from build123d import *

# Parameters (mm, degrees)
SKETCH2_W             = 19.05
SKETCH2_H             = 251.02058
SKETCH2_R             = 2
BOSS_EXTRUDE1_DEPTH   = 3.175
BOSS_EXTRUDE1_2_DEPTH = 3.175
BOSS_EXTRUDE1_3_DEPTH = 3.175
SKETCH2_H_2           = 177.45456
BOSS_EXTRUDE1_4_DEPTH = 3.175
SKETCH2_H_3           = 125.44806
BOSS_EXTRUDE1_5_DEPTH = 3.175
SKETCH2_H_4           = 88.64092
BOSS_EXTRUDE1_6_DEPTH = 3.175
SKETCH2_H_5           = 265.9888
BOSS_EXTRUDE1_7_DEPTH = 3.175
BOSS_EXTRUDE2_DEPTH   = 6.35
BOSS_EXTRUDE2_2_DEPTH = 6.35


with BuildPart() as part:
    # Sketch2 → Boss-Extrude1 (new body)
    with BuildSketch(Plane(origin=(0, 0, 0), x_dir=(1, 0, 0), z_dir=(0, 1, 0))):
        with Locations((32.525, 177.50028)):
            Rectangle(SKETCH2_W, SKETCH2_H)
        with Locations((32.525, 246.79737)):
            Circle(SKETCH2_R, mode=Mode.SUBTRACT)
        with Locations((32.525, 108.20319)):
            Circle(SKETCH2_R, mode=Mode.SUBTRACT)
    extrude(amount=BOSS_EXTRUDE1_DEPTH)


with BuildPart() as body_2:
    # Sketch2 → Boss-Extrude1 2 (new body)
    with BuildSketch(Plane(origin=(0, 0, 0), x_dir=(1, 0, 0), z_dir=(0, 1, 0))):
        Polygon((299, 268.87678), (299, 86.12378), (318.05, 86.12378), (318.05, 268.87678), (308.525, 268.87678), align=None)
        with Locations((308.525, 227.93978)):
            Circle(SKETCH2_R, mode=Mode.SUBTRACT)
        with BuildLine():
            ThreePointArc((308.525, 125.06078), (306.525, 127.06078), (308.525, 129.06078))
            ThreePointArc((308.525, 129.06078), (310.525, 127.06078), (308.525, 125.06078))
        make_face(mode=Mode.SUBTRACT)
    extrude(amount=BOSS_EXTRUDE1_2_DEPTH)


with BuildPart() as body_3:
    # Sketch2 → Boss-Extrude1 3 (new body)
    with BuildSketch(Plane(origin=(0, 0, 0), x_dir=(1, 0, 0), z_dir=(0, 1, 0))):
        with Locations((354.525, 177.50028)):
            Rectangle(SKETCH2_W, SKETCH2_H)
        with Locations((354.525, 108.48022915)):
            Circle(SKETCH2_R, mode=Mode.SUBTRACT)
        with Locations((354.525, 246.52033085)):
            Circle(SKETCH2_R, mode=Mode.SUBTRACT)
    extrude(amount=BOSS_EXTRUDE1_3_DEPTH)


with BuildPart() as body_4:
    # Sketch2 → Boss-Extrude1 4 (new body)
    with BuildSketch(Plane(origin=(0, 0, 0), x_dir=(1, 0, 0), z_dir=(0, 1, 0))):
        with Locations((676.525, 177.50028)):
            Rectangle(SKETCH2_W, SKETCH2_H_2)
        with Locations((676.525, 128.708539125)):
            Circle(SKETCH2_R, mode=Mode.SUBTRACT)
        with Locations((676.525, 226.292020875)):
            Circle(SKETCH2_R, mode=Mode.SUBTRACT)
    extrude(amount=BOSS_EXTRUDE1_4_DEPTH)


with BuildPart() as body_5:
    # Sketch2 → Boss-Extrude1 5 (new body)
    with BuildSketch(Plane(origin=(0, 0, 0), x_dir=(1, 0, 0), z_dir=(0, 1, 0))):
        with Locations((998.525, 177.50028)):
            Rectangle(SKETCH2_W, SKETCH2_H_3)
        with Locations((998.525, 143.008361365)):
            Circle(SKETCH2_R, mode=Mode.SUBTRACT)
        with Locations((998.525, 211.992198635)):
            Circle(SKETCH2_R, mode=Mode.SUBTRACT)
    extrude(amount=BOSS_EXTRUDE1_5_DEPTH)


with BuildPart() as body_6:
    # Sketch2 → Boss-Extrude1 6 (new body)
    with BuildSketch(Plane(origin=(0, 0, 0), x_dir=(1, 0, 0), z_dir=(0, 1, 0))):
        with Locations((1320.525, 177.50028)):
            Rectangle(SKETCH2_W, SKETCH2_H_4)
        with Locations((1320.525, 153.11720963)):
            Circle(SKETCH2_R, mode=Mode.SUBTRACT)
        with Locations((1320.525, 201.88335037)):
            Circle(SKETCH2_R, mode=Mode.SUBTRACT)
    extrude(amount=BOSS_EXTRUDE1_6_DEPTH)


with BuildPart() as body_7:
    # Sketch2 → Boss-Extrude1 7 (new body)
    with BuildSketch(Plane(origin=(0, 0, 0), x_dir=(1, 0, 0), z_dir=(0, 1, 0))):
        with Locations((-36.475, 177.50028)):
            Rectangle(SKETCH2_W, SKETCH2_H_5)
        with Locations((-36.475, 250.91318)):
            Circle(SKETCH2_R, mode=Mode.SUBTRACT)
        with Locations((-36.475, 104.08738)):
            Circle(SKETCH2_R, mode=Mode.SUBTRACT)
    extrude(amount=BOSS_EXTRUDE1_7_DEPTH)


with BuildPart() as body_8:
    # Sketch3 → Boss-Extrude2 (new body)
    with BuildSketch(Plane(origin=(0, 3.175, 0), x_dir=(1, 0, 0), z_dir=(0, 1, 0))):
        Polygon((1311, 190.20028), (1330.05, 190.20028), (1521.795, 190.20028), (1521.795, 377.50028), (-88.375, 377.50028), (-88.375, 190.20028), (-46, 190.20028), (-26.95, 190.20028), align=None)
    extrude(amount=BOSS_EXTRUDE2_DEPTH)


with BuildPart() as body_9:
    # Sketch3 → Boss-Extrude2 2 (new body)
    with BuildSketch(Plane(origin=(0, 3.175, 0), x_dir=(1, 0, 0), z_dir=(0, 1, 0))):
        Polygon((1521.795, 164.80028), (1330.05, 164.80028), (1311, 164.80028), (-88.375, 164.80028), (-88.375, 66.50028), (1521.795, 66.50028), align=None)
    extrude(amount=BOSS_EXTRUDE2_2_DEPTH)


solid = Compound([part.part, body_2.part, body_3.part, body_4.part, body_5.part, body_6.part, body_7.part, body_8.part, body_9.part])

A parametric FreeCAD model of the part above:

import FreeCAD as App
import Part
import Sketcher
from FreeCAD import Vector
Q = App.Units.Quantity

doc = App.newDocument("Part")
body = doc.addObject("PartDesign::Body", "Body")

# Sketch on XZ plane
sketch1 = body.newObject("Sketcher::SketchObject", "Sketch")
sketch1.AttachmentSupport = (doc.getObject("XZ_Plane"), [""])
sketch1.MapMode = "FlatFace"
sketch1.addGeometry([
    Part.LineSegment(Vector(23, -303, 0), Vector(23, -52, 0)),  # 0
    Part.LineSegment(Vector(23, -52, 0), Vector(42, -52, 0)),  # 1
    Part.LineSegment(Vector(42, -52, 0), Vector(42, -303, 0)),  # 2
    Part.LineSegment(Vector(42, -303, 0), Vector(23, -303, 0)),  # 3
    Part.Circle(Vector(32.5, -108.2, 0), Vector(0, 0, 1), 2),  # 4
    Part.Circle(Vector(32.5, -246.8, 0), Vector(0, 0, 1), 2),  # 5
], False)
sketch1.addConstraint([
    Sketcher.Constraint("Coincident", 0, 2, 1, 1),
    Sketcher.Constraint("Coincident", 1, 2, 2, 1),
    Sketcher.Constraint("Coincident", 2, 2, 3, 1),
    Sketcher.Constraint("Coincident", 3, 2, 0, 1),
    Sketcher.Constraint("Vertical", 0),
    Sketcher.Constraint("Horizontal", 1),
    Sketcher.Constraint("Vertical", 2),
    Sketcher.Constraint("Horizontal", 3),
    Sketcher.Constraint("Equal", 4, 5),
    Sketcher.Constraint("Vertical", 4, 3, 5, 3),
    Sketcher.Constraint("DistanceX", 1, 1, 1, 2, Q("0.75 in")),
    Sketcher.Constraint("Diameter", 4, 4.0),
    Sketcher.Constraint("DistanceY", 0, 1, 0, 2, Q("9.8827 in")),
    Sketcher.Constraint("DistanceX", 0, 2, 4, 3, Q("0.375 in")),
    Sketcher.Constraint("DistanceX", -1, 1, 4, 3, 32.525),
    Sketcher.Constraint("DistanceY", 4, 3, 0, 2, 56.2132),
    Sketcher.Constraint("DistanceY", 2, 2, 5, 3, 56.2132),
    Sketcher.Constraint("DistanceY", 4, 3, -1, 1, 108.20319),
])
pad1 = body.newObject("PartDesign::Pad", "Pad")
pad1.Profile = sketch1
pad1.Length = Q("0.125 in")
pad1.Reversed = True
body2 = doc.addObject("PartDesign::Body", "Body001")

# Sketch on XZ plane
sketch2 = body2.newObject("Sketcher::SketchObject", "Sketch001")
sketch2.AttachmentSupport = (doc.getObject("XZ_Plane001"), [""])
sketch2.MapMode = "FlatFace"
sketch2.addGeometry([
    Part.LineSegment(Vector(299, -268.9, 0), Vector(299, -86.1, 0)),  # 0
    Part.LineSegment(Vector(299, -86.1, 0), Vector(318.1, -86.1, 0)),  # 1
    Part.LineSegment(Vector(318.1, -86.1, 0), Vector(318.1, -268.9, 0)),  # 2
    Part.LineSegment(Vector(318.1, -268.9, 0), Vector(299, -268.9, 0)),  # 3
    Part.Circle(Vector(308.5, -127.1, 0), Vector(0, 0, 1), 2),  # 4
    Part.Circle(Vector(308.5, -227.9, 0), Vector(0, 0, 1), 2),  # 5
], False)
sketch2.addConstraint([
    Sketcher.Constraint("Coincident", 0, 2, 1, 1),
    Sketcher.Constraint("Coincident", 1, 2, 2, 1),
    Sketcher.Constraint("Coincident", 2, 2, 3, 1),
    Sketcher.Constraint("Coincident", 3, 2, 0, 1),
    Sketcher.Constraint("Vertical", 0),
    Sketcher.Constraint("Horizontal", 1),
    Sketcher.Constraint("Vertical", 2),
    Sketcher.Constraint("Horizontal", 3),
    Sketcher.Constraint("Equal", 4, 5),
    Sketcher.Constraint("Vertical", 4, 3, 5, 3),
    Sketcher.Constraint("DistanceX", 1, 1, 1, 2, Q("0.75 in")),
    Sketcher.Constraint("Diameter", 4, 4.0),
    Sketcher.Constraint("DistanceY", 0, 1, 0, 2, Q("7.195 in")),
    Sketcher.Constraint("DistanceX", 0, 2, 4, 3, Q("0.375 in")),
    Sketcher.Constraint("DistanceY", 0, 2, -1, 1, Q("3.3907 in")),
    Sketcher.Constraint("DistanceX", -1, 1, 4, 3, 308.525),
    Sketcher.Constraint("DistanceY", 5, 3, 4, 3, 100.879),
    Sketcher.Constraint("DistanceY", 4, 3, 0, 2, 40.937),
])
pad2 = body2.newObject("PartDesign::Pad", "Pad001")
pad2.Profile = sketch2
pad2.Length = Q("0.125 in")
pad2.Reversed = True
body3 = doc.addObject("PartDesign::Body", "Body002")

# Sketch on XZ plane
sketch3 = body3.newObject("Sketcher::SketchObject", "Sketch002")
sketch3.AttachmentSupport = (doc.getObject("XZ_Plane002"), [""])
sketch3.MapMode = "FlatFace"
sketch3.addGeometry([
    Part.LineSegment(Vector(345, -303, 0), Vector(345, -52, 0)),  # 0
    Part.LineSegment(Vector(345, -52, 0), Vector(364.1, -52, 0)),  # 1
    Part.LineSegment(Vector(364.1, -52, 0), Vector(364.1, -303, 0)),  # 2
    Part.LineSegment(Vector(364.1, -303, 0), Vector(345, -303, 0)),  # 3
    Part.Circle(Vector(354.5, -108.5, 0), Vector(0, 0, 1), 2),  # 4
    Part.Circle(Vector(354.5, -246.5, 0), Vector(0, 0, 1), 2),  # 5
], False)
sketch3.addConstraint([
    Sketcher.Constraint("Coincident", 0, 2, 1, 1),
    Sketcher.Constraint("Coincident", 1, 2, 2, 1),
    Sketcher.Constraint("Coincident", 2, 2, 3, 1),
    Sketcher.Constraint("Coincident", 3, 2, 0, 1),
    Sketcher.Constraint("Vertical", 0),
    Sketcher.Constraint("Horizontal", 1),
    Sketcher.Constraint("Vertical", 2),
    Sketcher.Constraint("Horizontal", 3),
    Sketcher.Constraint("Equal", 4, 5),
    Sketcher.Constraint("Vertical", 4, 3, 5, 3),
    Sketcher.Constraint("DistanceX", 1, 1, 1, 2, Q("0.75 in")),
    Sketcher.Constraint("Diameter", 4, 4.0),
    Sketcher.Constraint("DistanceY", 0, 1, 0, 2, Q("9.8827 in")),
    Sketcher.Constraint("DistanceX", 0, 2, 4, 3, Q("0.375 in")),
    Sketcher.Constraint("DistanceX", -1, 1, 4, 3, 354.525),
    Sketcher.Constraint("DistanceY", 5, 3, 4, 3, 138.040102),
    Sketcher.Constraint("DistanceY", 4, 3, -1, 1, 108.480229),
    Sketcher.Constraint("DistanceY", 0, 2, -1, 1, 51.98999),
])
pad3 = body3.newObject("PartDesign::Pad", "Pad002")
pad3.Profile = sketch3
pad3.Length = Q("0.125 in")
pad3.Reversed = True
body4 = doc.addObject("PartDesign::Body", "Body003")

# Sketch on XZ plane
sketch4 = body4.newObject("Sketcher::SketchObject", "Sketch003")
sketch4.AttachmentSupport = (doc.getObject("XZ_Plane003"), [""])
sketch4.MapMode = "FlatFace"
sketch4.addGeometry([
    Part.LineSegment(Vector(667, -266.2, 0), Vector(667, -88.8, 0)),  # 0
    Part.LineSegment(Vector(667, -88.8, 0), Vector(686, -88.8, 0)),  # 1
    Part.LineSegment(Vector(686, -88.8, 0), Vector(686, -266.2, 0)),  # 2
    Part.LineSegment(Vector(686, -266.2, 0), Vector(667, -266.2, 0)),  # 3
    Part.Circle(Vector(676.5, -128.7, 0), Vector(0, 0, 1), 2),  # 4
    Part.Circle(Vector(676.5, -226.3, 0), Vector(0, 0, 1), 2),  # 5
], False)
sketch4.addConstraint([
    Sketcher.Constraint("Coincident", 0, 2, 1, 1),
    Sketcher.Constraint("Coincident", 1, 2, 2, 1),
    Sketcher.Constraint("Coincident", 2, 2, 3, 1),
    Sketcher.Constraint("Coincident", 3, 2, 0, 1),
    Sketcher.Constraint("Vertical", 0),
    Sketcher.Constraint("Horizontal", 1),
    Sketcher.Constraint("Vertical", 2),
    Sketcher.Constraint("Horizontal", 3),
    Sketcher.Constraint("Equal", 4, 5),
    Sketcher.Constraint("Vertical", 4, 3, 5, 3),
    Sketcher.Constraint("DistanceX", 1, 1, 1, 2, Q("0.75 in")),
    Sketcher.Constraint("Diameter", 4, 4.0),
    Sketcher.Constraint("DistanceY", 0, 1, 0, 2, Q("6.9864 in")),
    Sketcher.Constraint("DistanceY", 0, 2, -1, 1, Q("3.495 in")),
    Sketcher.Constraint("DistanceX", 0, 2, 4, 3, Q("0.375 in")),
    Sketcher.Constraint("DistanceX", -1, 1, 4, 3, 676.525),
    Sketcher.Constraint("DistanceY", 4, 3, -1, 1, 128.708539),
    Sketcher.Constraint("DistanceY", 5, 3, -1, 1, 226.292021),
])
pad4 = body4.newObject("PartDesign::Pad", "Pad003")
pad4.Profile = sketch4
pad4.Length = Q("0.125 in")
pad4.Reversed = True
body5 = doc.addObject("PartDesign::Body", "Body004")

# Sketch on XZ plane
sketch5 = body5.newObject("Sketcher::SketchObject", "Sketch004")
sketch5.AttachmentSupport = (doc.getObject("XZ_Plane004"), [""])
sketch5.MapMode = "FlatFace"
sketch5.addGeometry([
    Part.LineSegment(Vector(989, -240.2, 0), Vector(989, -114.8, 0)),  # 0
    Part.LineSegment(Vector(989, -114.8, 0), Vector(1008, -114.8, 0)),  # 1
    Part.LineSegment(Vector(1008, -114.8, 0), Vector(1008, -240.2, 0)),  # 2
    Part.LineSegment(Vector(1008, -240.2, 0), Vector(989, -240.2, 0)),  # 3
    Part.Circle(Vector(998.5, -143, 0), Vector(0, 0, 1), 2),  # 4
    Part.Circle(Vector(998.5, -212, 0), Vector(0, 0, 1), 2),  # 5
], False)
sketch5.addConstraint([
    Sketcher.Constraint("Coincident", 0, 2, 1, 1),
    Sketcher.Constraint("Coincident", 1, 2, 2, 1),
    Sketcher.Constraint("Coincident", 2, 2, 3, 1),
    Sketcher.Constraint("Coincident", 3, 2, 0, 1),
    Sketcher.Constraint("Vertical", 0),
    Sketcher.Constraint("Horizontal", 1),
    Sketcher.Constraint("Vertical", 2),
    Sketcher.Constraint("Horizontal", 3),
    Sketcher.Constraint("Equal", 4, 5),
    Sketcher.Constraint("Vertical", 4, 3, 5, 3),
    Sketcher.Constraint("DistanceX", 1, 1, 1, 2, Q("0.75 in")),
    Sketcher.Constraint("Diameter", 4, 4.0),
    Sketcher.Constraint("DistanceY", 0, 1, 0, 2, Q("4.9389 in")),
    Sketcher.Constraint("DistanceX", 0, 2, 4, 3, Q("0.375 in")),
    Sketcher.Constraint("DistanceX", -1, 1, 4, 3, 998.525),
    Sketcher.Constraint("DistanceY", 5, 3, -1, 1, 211.992199),
    Sketcher.Constraint("DistanceY", 4, 3, -1, 1, 143.008361),
    Sketcher.Constraint("DistanceY", 0, 2, -1, 1, 114.77625),
])
pad5 = body5.newObject("PartDesign::Pad", "Pad004")
pad5.Profile = sketch5
pad5.Length = Q("0.125 in")
pad5.Reversed = True
body6 = doc.addObject("PartDesign::Body", "Body005")

# Sketch on XZ plane
sketch6 = body6.newObject("Sketcher::SketchObject", "Sketch005")
sketch6.AttachmentSupport = (doc.getObject("XZ_Plane005"), [""])
sketch6.MapMode = "FlatFace"
sketch6.addGeometry([
    Part.LineSegment(Vector(1311, -221.8, 0), Vector(1311, -133.2, 0)),  # 0
    Part.LineSegment(Vector(1311, -133.2, 0), Vector(1330, -133.2, 0)),  # 1
    Part.LineSegment(Vector(1330, -133.2, 0), Vector(1330, -221.8, 0)),  # 2
    Part.LineSegment(Vector(1330, -221.8, 0), Vector(1311, -221.8, 0)),  # 3
    Part.Circle(Vector(1320.5, -153.1, 0), Vector(0, 0, 1), 2),  # 4
    Part.Circle(Vector(1320.5, -201.9, 0), Vector(0, 0, 1), 2),  # 5
], False)
sketch6.addConstraint([
    Sketcher.Constraint("Coincident", 0, 2, 1, 1),
    Sketcher.Constraint("Coincident", 1, 2, 2, 1),
    Sketcher.Constraint("Coincident", 2, 2, 3, 1),
    Sketcher.Constraint("Coincident", 3, 2, 0, 1),
    Sketcher.Constraint("Vertical", 0),
    Sketcher.Constraint("Horizontal", 1),
    Sketcher.Constraint("Vertical", 2),
    Sketcher.Constraint("Horizontal", 3),
    Sketcher.Constraint("Equal", 4, 5),
    Sketcher.Constraint("Vertical", 4, 3, 5, 3),
    Sketcher.Constraint("DistanceX", 1, 1, 1, 2, Q("0.75 in")),
    Sketcher.Constraint("Diameter", 4, 4.0),
    Sketcher.Constraint("DistanceY", 0, 1, 0, 2, Q("3.4898 in")),
    Sketcher.Constraint("DistanceX", 0, 2, 4, 3, Q("0.375 in")),
    Sketcher.Constraint("DistanceY", 0, 2, -1, 1, Q("5.2433 in")),
    Sketcher.Constraint("DistanceX", -1, 1, 4, 3, 1320.525),
    Sketcher.Constraint("DistanceY", 4, 3, -1, 1, 153.11721),
    Sketcher.Constraint("DistanceY", 5, 3, -1, 1, 201.88335),
])
pad6 = body6.newObject("PartDesign::Pad", "Pad005")
pad6.Profile = sketch6
pad6.Length = Q("0.125 in")
pad6.Reversed = True
body7 = doc.addObject("PartDesign::Body", "Body006")

# Sketch on XZ plane
sketch7 = body7.newObject("Sketcher::SketchObject", "Sketch006")
sketch7.AttachmentSupport = (doc.getObject("XZ_Plane006"), [""])
sketch7.MapMode = "FlatFace"
sketch7.addGeometry([
    Part.LineSegment(Vector(-46, -310.5, 0), Vector(-46, -44.5, 0)),  # 0
    Part.LineSegment(Vector(-46, -44.5, 0), Vector(-26.9, -44.5, 0)),  # 1
    Part.LineSegment(Vector(-26.9, -44.5, 0), Vector(-26.9, -310.5, 0)),  # 2
    Part.LineSegment(Vector(-26.9, -310.5, 0), Vector(-46, -310.5, 0)),  # 3
    Part.Circle(Vector(-36.5, -104.1, 0), Vector(0, 0, 1), 2),  # 4
    Part.Circle(Vector(-36.5, -250.9, 0), Vector(0, 0, 1), 2),  # 5
], False)
sketch7.addConstraint([
    Sketcher.Constraint("Coincident", 0, 2, 1, 1),
    Sketcher.Constraint("Coincident", 1, 2, 2, 1),
    Sketcher.Constraint("Coincident", 2, 2, 3, 1),
    Sketcher.Constraint("Coincident", 3, 2, 0, 1),
    Sketcher.Constraint("Vertical", 0),
    Sketcher.Constraint("Horizontal", 1),
    Sketcher.Constraint("Vertical", 2),
    Sketcher.Constraint("Horizontal", 3),
    Sketcher.Constraint("Equal", 4, 5),
    Sketcher.Constraint("Vertical", 4, 3, 5, 3),
    Sketcher.Constraint("DistanceX", 1, 1, 1, 2, Q("0.75 in")),
    Sketcher.Constraint("Diameter", 4, 4.0),
    Sketcher.Constraint("DistanceY", 0, 1, 0, 2, Q("10.472 in")),
    Sketcher.Constraint("DistanceX", 0, 2, 4, 3, Q("0.375 in")),
    Sketcher.Constraint("DistanceY", 0, 2, -1, 1, Q("1.7522 in")),
    Sketcher.Constraint("DistanceX", 4, 3, -1, 1, 36.475),
    Sketcher.Constraint("DistanceY", 5, 3, 4, 3, 146.8258),
    Sketcher.Constraint("DistanceY", 4, 3, 0, 2, 59.5815),
])
pad7 = body7.newObject("PartDesign::Pad", "Pad006")
pad7.Profile = sketch7
pad7.Length = Q("0.125 in")
pad7.Reversed = True
body8 = doc.addObject("PartDesign::Body", "Body007")

# Sketch on XZ plane
sketch8 = body8.newObject("Sketcher::SketchObject", "Sketch007")
sketch8.AttachmentSupport = (doc.getObject("XZ_Plane007"), [""])
sketch8.MapMode = "FlatFace"
sketch8.AttachmentOffset = App.Placement(Vector(0, 0, -0.125 * 25.4), App.Rotation())
sketch8.addGeometry([
    Part.LineSegment(Vector(1522, -190, 0), Vector(1522, -378, 0)),
    Part.LineSegment(Vector(1522, -378, 0), Vector(-88, -378, 0)),
    Part.LineSegment(Vector(-88, -378, 0), Vector(-88, -190, 0)),
    Part.LineSegment(Vector(-88, -190, 0), Vector(1522, -190, 0)),
], False)
sketch8.addConstraint([
    Sketcher.Constraint("Coincident", 0, 2, 1, 1),
    Sketcher.Constraint("Coincident", 1, 2, 2, 1),
    Sketcher.Constraint("Coincident", 2, 2, 3, 1),
    Sketcher.Constraint("Coincident", 3, 2, 0, 1),
    Sketcher.Constraint("Vertical", 0),
    Sketcher.Constraint("Horizontal", 1),
    Sketcher.Constraint("Vertical", 2),
    Sketcher.Constraint("Horizontal", 3),
    Sketcher.Constraint("DistanceX", 1, 2, 1, 1, 1610.17),
    Sketcher.Constraint("DistanceY", 0, 2, 0, 1, 187.3),
    Sketcher.Constraint("DistanceY", 2, 2, -1, 1, Q("7.4882 in")),
    Sketcher.Constraint("DistanceX", -1, 1, 0, 2, 1521.795),
])
pad8 = body8.newObject("PartDesign::Pad", "Pad007")
pad8.Profile = sketch8
pad8.Length = Q("0.25 in")
pad8.Reversed = True
body9 = doc.addObject("PartDesign::Body", "Body008")

# Sketch on XZ plane
sketch9 = body9.newObject("Sketcher::SketchObject", "Sketch008")
sketch9.AttachmentSupport = (doc.getObject("XZ_Plane008"), [""])
sketch9.MapMode = "FlatFace"
sketch9.AttachmentOffset = App.Placement(Vector(0, 0, -0.125 * 25.4), App.Rotation())
sketch9.addGeometry([
    Part.LineSegment(Vector(1522, -165, 0), Vector(-88, -165, 0)),
    Part.LineSegment(Vector(-88, -165, 0), Vector(-88, -67, 0)),
    Part.LineSegment(Vector(-88, -67, 0), Vector(1522, -67, 0)),
    Part.LineSegment(Vector(1522, -67, 0), Vector(1522, -165, 0)),
], False)
sketch9.addConstraint([
    Sketcher.Constraint("Coincident", 0, 2, 1, 1),
    Sketcher.Constraint("Coincident", 1, 2, 2, 1),
    Sketcher.Constraint("Coincident", 2, 2, 3, 1),
    Sketcher.Constraint("Coincident", 3, 2, 0, 1),
    Sketcher.Constraint("Horizontal", 0),
    Sketcher.Constraint("Vertical", 1),
    Sketcher.Constraint("Horizontal", 2),
    Sketcher.Constraint("Vertical", 3),
    Sketcher.Constraint("DistanceX", 0, 2, 0, 1, 1610.17),
    Sketcher.Constraint("DistanceY", 1, 1, 1, 2, 98.3),
    Sketcher.Constraint("DistanceY", 0, 2, -1, 1, Q("6.4882 in")),
    Sketcher.Constraint("DistanceX", 0, 2, -1, 1, 88.375),
])
pad9 = body9.newObject("PartDesign::Pad", "Pad008")
pad9.Profile = sketch9
pad9.Length = Q("0.25 in")
pad9.Reversed = True

doc.recompute()
